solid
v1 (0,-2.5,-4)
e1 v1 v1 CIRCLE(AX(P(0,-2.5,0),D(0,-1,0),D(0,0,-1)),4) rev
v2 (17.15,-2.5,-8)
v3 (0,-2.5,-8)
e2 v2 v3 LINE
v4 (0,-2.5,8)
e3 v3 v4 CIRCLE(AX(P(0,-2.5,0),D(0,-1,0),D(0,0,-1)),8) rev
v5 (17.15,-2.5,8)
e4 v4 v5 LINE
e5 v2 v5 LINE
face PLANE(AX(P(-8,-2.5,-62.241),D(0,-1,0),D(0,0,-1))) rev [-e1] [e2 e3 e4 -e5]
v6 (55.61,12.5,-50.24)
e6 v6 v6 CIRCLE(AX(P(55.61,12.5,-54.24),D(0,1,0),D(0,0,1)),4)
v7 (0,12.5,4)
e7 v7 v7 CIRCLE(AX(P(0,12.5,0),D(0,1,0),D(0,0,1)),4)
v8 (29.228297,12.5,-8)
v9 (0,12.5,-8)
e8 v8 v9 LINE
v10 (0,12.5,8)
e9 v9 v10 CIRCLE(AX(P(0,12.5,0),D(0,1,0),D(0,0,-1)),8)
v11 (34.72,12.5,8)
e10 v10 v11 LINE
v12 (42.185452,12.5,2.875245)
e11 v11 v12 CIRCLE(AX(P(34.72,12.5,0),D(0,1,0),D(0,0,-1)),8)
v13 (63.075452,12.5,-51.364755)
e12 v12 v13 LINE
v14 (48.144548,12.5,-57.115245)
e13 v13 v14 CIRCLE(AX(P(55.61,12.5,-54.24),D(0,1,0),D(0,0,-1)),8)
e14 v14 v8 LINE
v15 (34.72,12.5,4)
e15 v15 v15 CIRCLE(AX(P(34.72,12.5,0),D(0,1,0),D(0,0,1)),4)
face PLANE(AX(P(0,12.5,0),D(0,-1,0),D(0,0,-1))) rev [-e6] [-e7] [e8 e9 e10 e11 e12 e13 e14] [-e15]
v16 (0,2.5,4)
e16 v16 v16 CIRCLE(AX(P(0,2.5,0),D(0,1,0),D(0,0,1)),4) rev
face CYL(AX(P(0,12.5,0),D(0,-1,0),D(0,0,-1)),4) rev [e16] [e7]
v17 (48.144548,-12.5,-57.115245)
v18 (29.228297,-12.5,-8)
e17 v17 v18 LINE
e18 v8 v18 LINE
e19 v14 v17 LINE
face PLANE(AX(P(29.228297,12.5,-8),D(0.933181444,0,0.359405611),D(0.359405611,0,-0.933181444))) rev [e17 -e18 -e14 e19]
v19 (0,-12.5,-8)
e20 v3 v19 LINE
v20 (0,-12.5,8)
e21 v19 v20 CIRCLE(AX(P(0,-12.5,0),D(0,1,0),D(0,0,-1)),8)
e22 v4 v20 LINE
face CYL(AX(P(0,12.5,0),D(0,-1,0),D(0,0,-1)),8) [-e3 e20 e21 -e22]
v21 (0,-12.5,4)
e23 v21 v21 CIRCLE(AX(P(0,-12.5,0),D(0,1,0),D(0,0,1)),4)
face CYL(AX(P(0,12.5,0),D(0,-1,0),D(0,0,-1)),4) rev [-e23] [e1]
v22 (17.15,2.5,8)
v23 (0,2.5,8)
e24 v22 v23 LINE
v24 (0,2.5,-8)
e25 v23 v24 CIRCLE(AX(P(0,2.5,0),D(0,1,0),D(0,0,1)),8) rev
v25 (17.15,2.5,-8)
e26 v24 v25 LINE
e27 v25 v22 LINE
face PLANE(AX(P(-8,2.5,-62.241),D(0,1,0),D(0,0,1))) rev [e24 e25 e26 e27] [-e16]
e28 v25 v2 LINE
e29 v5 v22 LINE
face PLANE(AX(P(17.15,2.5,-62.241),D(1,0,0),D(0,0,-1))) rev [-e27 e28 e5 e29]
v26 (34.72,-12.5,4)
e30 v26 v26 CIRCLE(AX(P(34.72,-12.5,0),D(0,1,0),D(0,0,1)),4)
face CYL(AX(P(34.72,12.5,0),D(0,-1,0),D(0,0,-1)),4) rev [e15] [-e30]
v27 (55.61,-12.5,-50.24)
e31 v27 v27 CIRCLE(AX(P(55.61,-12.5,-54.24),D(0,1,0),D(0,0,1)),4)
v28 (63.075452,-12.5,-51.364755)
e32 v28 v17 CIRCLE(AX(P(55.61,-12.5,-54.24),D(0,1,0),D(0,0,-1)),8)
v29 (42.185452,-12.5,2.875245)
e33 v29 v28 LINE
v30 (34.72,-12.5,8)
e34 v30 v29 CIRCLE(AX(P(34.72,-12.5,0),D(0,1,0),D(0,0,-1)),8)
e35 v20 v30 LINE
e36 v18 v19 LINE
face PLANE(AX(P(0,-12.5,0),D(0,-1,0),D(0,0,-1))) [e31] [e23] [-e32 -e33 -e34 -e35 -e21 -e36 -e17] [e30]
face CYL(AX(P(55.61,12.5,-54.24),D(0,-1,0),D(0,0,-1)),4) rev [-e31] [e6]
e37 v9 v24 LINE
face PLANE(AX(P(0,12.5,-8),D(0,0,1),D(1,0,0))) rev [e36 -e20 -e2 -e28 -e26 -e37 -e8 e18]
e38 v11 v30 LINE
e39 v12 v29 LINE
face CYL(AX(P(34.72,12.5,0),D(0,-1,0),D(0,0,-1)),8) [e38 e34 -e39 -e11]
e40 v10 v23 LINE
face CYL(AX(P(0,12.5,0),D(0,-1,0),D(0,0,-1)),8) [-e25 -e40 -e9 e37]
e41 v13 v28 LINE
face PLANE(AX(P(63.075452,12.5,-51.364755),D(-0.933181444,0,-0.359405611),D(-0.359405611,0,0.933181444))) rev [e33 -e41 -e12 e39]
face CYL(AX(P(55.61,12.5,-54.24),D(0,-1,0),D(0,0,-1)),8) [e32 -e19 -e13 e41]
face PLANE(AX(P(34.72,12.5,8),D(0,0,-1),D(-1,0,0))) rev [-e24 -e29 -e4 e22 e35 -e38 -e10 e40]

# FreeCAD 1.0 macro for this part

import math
import FreeCAD as App
import Part
import Sketcher
from FreeCAD import Vector
Q = App.Units.Quantity


def add_polygon(sketch, points):
    """Adds a closed chain of lines whose ends are joined by coincident constraints."""
    first, n = sketch.GeometryCount, len(points)
    for a, b in zip(points, points[1:] + points[:1]):
        sketch.addGeometry(Part.LineSegment(App.Vector(*a, 0), App.Vector(*b, 0)), False)
    for i in range(n):
        sketch.addConstraint(Sketcher.Constraint("Coincident", first + i, 2, first + (i + 1) % n, 1))

doc = App.newDocument("Part")
body = doc.addObject("PartDesign::Body", "Body")

sketch1 = doc.addObject("Sketcher::SketchObject", "Sketch")
body.addObject(sketch1)
sketch1.AttachmentSupport = (doc.XZ_Plane, [""])
sketch1.MapMode = "FlatFace"
sketch1.addGeometry([
    Part.LineSegment(Vector(29.2, -8, 0), Vector(0, -8, 0)),
    Part.ArcOfCircle(Part.Circle(Vector(0, 0, 0), Vector(0, 0, 1), 8), math.radians(90), math.radians(270)),
    Part.LineSegment(Vector(0, 8, 0), Vector(34.7, 8, 0)),
    Part.ArcOfCircle(Part.Circle(Vector(34.7, 0, 0), Vector(0, 0, 1), 8), math.radians(21), math.radians(90)),
    Part.LineSegment(Vector(42.2, 2.9, 0), Vector(63.1, -51.4, 0)),
    Part.ArcOfCircle(Part.Circle(Vector(55.6, -54.2, 0), Vector(0, 0, 1), 8), math.radians(-159), math.radians(21)),
    Part.LineSegment(Vector(48.1, -57.1, 0), Vector(29.2, -8, 0)),
    Part.Circle(Vector(34.7, 0, 0), Vector(0, 0, 1), 4),
    Part.Circle(Vector(0, 0, 0), Vector(0, 0, 1), 4),
    Part.Circle(Vector(55.6, -54.2, 0), Vector(0, 0, 1), 4),
], False)
sketch1.addConstraint([
    Sketcher.Constraint("Tangent", 0, 2, 1, 2),
    Sketcher.Constraint("Tangent", 1, 1, 2, 1),
    Sketcher.Constraint("Tangent", 2, 2, 3, 2),
    Sketcher.Constraint("Tangent", 3, 1, 4, 1),
    Sketcher.Constraint("Tangent", 4, 2, 5, 2),
    Sketcher.Constraint("Tangent", 5, 1, 6, 1),
    Sketcher.Constraint("Coincident", 6, 2, 0, 1),
    Sketcher.Constraint("Horizontal", 0),
    Sketcher.Constraint("Horizontal", 2),
    Sketcher.Constraint("Coincident", 1, 3, -1, 1),
    Sketcher.Constraint("Coincident", 8, 3, -1, 1),
    Sketcher.Constraint("Coincident", 7, 3, 3, 3),
    Sketcher.Constraint("Coincident", 9, 3, 5, 3),
    Sketcher.Constraint("Equal", 1, 3),
    Sketcher.Constraint("Equal", 3, 5),
    Sketcher.Constraint("Equal", 7, 8),
    Sketcher.Constraint("Equal", 8, 9),
    Sketcher.Constraint("Parallel", 4, 6),
    Sketcher.Constraint("Diameter", 7, Q("8 mm")),
    Sketcher.Constraint("Radius", 1, Q("8 mm")),
    Sketcher.Constraint("DistanceX", 2, 1, 2, 2, Q("34.72 mm")),
    Sketcher.Constraint("DistanceX", -1, 1, 5, 3, Q("55.61 mm")),
    Sketcher.Constraint("DistanceY", 5, 3, -1, 1, Q("54.24 mm")),
])
pad1 = doc.addObject("PartDesign::Pad", "Pad")
body.addObject(pad1)
pad1.Profile = sketch1
pad1.Length = 25
pad1.Midplane = True

sketch2 = doc.addObject("Sketcher::SketchObject", "Sketch001")
body.addObject(sketch2)
sketch2.AttachmentSupport = (doc.XY_Plane, [""])
sketch2.MapMode = "FlatFace"
sketch2.AttachmentOffset = App.Placement(Vector(0, 0, 8), App.Rotation())
add_polygon(sketch2, [(-8, 2), (-8, -2), (17, -2), (17, 2)])
sketch2.addConstraint([
    Sketcher.Constraint("Vertical", 0),
    Sketcher.Constraint("Horizontal", 1),
    Sketcher.Constraint("Vertical", 2),
    Sketcher.Constraint("Horizontal", 3),
    Sketcher.Constraint("DistanceY", 0, 2, 0, 1, Q("5 mm")),
    Sketcher.Constraint("DistanceX", 0, 2, -1, 1, Q("8 mm")),
    Sketcher.Constraint("DistanceX", 1, 1, 1, 2, Q("25.15 mm")),
    Sketcher.Constraint("DistanceY", 0, 2, -1, 1, Q("2.5 mm")),
])
pocket1 = doc.addObject("PartDesign::Pocket", "Pocket")
body.addObject(pocket1)
pocket1.Profile = sketch2
pocket1.Length = 16

doc.recompute()
